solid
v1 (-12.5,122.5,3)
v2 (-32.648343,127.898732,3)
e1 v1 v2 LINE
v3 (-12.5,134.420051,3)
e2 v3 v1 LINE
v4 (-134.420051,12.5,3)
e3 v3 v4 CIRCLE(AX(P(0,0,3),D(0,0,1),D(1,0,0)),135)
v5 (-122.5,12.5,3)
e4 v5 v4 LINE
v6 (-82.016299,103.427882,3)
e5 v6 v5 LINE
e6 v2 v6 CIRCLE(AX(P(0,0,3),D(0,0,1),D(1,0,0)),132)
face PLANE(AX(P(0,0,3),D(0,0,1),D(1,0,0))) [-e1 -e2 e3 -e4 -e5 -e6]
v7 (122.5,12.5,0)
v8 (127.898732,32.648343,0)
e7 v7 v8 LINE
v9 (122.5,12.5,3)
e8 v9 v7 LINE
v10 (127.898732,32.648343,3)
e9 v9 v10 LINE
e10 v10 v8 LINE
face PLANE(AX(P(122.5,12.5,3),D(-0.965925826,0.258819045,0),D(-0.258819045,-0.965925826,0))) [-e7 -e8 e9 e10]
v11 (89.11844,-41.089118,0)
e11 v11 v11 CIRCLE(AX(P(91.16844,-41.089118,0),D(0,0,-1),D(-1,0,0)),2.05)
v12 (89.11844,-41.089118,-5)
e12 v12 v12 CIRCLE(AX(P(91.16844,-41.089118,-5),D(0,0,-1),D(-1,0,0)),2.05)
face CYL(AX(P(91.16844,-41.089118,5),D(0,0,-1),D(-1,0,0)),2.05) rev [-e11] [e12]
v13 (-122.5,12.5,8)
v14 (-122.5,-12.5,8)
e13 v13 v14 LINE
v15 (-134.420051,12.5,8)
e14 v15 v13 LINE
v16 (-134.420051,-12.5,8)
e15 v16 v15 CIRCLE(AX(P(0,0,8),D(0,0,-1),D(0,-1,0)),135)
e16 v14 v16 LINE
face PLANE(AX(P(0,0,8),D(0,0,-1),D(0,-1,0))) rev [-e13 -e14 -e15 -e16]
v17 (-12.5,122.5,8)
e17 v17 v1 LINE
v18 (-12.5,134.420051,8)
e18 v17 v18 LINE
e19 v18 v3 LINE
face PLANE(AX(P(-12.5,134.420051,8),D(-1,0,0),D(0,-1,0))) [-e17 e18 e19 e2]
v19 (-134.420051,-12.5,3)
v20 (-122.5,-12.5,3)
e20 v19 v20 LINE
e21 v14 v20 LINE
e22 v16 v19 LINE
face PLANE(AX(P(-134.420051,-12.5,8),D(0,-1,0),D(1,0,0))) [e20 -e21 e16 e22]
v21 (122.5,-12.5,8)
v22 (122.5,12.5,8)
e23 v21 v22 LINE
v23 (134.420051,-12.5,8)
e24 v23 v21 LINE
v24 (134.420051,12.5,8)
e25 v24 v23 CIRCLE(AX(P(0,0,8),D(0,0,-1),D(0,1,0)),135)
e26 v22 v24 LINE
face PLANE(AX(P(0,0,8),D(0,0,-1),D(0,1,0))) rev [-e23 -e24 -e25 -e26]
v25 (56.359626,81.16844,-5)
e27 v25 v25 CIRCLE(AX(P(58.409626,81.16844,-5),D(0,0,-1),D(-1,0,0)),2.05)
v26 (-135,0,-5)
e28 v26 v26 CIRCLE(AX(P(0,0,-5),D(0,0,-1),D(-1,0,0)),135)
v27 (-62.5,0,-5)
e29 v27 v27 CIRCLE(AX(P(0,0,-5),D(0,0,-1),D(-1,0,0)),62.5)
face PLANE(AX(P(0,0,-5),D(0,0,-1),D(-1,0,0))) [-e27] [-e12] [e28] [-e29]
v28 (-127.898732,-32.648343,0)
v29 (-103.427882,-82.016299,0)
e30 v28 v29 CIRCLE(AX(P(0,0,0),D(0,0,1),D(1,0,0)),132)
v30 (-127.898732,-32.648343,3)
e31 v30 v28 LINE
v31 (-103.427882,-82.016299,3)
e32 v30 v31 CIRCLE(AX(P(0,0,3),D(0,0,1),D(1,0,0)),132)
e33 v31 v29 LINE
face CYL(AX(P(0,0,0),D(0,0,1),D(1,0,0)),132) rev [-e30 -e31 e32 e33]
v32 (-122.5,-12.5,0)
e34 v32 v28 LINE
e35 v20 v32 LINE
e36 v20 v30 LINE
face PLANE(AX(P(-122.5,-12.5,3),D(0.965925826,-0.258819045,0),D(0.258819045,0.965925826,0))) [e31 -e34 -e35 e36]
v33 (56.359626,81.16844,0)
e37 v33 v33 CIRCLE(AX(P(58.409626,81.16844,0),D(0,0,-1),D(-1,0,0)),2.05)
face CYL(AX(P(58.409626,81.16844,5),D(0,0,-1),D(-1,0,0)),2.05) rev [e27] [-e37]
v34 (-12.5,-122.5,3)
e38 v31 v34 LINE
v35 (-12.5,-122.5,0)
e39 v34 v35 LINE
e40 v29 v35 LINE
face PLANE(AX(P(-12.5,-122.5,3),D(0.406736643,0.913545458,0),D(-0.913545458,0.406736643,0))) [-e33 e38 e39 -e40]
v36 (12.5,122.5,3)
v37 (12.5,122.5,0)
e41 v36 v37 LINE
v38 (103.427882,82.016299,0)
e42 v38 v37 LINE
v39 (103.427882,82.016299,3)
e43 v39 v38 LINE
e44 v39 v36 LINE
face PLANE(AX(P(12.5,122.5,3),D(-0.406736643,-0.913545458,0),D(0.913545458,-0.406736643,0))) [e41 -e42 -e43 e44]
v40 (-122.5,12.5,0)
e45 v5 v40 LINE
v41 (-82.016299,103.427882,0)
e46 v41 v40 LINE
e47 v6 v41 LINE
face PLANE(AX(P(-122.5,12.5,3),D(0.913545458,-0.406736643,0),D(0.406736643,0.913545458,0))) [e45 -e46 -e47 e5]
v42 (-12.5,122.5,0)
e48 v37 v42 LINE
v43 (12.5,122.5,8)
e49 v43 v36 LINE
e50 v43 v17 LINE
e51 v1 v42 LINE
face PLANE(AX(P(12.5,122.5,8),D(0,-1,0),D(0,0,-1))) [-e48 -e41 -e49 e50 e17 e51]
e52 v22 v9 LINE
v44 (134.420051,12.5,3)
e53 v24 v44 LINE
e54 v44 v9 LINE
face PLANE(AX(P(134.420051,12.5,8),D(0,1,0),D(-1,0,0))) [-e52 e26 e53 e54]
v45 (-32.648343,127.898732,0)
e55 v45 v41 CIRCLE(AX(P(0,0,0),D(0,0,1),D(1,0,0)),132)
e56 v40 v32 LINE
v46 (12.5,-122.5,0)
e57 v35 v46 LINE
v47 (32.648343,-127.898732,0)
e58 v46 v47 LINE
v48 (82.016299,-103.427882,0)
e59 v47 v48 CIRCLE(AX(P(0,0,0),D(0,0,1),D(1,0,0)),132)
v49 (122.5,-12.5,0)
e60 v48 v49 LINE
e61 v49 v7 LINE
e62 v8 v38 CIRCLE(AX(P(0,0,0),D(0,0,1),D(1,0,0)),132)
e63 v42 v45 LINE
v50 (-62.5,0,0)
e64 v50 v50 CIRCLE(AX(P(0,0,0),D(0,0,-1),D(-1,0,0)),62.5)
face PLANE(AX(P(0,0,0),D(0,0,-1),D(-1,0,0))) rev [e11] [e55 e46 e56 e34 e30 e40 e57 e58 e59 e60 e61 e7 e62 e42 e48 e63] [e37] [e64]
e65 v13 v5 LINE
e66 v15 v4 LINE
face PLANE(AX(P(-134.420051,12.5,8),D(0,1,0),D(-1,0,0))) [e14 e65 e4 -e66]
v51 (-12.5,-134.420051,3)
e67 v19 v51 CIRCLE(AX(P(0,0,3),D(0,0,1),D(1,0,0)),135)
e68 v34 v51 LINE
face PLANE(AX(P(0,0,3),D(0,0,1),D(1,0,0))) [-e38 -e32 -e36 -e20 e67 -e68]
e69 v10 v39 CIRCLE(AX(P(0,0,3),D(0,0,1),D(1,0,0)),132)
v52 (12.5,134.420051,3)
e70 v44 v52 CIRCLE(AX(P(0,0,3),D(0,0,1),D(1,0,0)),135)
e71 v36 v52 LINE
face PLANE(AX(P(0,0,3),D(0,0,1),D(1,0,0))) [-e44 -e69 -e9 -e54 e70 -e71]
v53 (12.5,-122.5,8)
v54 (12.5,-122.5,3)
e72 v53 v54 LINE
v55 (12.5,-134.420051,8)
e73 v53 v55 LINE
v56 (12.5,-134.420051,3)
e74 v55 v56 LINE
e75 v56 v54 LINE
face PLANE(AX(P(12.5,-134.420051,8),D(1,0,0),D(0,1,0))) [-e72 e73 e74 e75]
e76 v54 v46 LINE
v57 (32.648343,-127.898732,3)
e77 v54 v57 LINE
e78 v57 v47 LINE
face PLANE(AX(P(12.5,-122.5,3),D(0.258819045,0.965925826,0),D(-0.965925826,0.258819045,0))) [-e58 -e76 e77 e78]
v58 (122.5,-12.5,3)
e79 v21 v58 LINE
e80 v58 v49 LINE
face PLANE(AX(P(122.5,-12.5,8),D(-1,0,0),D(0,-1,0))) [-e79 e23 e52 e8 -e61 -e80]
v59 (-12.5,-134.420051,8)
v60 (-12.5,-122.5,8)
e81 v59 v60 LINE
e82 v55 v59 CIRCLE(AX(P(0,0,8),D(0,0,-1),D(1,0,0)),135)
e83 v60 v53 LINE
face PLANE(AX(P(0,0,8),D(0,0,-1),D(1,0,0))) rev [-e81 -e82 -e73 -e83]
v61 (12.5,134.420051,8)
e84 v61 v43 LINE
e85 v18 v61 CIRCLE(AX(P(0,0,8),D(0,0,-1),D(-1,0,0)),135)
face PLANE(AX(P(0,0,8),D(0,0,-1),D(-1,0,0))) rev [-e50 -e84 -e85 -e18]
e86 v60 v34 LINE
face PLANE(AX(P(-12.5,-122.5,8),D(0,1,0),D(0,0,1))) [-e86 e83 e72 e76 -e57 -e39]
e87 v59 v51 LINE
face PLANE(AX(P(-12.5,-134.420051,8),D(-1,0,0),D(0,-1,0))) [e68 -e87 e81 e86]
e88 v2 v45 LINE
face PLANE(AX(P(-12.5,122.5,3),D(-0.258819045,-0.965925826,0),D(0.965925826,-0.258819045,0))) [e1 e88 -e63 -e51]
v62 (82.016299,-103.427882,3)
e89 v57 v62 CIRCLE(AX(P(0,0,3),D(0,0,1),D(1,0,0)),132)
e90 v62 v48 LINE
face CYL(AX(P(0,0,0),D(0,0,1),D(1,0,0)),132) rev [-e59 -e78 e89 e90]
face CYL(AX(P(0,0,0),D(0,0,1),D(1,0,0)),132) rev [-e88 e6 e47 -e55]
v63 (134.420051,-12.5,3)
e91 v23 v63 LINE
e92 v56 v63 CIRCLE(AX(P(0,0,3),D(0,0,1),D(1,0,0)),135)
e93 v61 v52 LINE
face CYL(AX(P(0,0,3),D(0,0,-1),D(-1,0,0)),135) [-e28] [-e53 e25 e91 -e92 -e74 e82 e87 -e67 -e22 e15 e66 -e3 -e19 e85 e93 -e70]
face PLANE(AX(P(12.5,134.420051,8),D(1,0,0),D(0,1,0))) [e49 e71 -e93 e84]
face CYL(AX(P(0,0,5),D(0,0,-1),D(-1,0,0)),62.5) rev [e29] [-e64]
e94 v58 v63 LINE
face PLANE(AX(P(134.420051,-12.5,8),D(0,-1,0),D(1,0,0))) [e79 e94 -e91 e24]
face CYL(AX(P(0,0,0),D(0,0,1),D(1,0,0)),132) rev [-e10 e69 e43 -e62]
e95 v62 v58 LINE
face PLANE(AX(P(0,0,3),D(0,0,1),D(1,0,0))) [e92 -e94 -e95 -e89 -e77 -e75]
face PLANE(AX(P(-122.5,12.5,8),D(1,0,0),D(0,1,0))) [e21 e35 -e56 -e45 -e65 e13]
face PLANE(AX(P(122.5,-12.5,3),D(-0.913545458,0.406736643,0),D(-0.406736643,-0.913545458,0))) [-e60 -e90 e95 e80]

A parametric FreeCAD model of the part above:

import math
import FreeCAD as App
import Part
import Sketcher
Q = App.Units.Quantity

doc = App.newDocument("Part")
params = doc.addObject("Spreadsheet::Sheet", "Params")
for row, (alias, value) in enumerate([
    ("sketch1_diameter", "270 mm"),
    ("pad1_length", "3 mm"),
    ("sketch2_diameter", "264 mm"),
    ("sketch3_radius", "135 mm"),
    ("sketch3_width", "25 mm"),
    ("pad2_length", "8 mm"),
    ("sketch4_radius", "132 mm"),
    ("sketch4_width", "25 mm"),
    ("pad3_length", "3 mm"),
    ("sketch5_diameter", "270 mm"),
    ("pad4_length", "5 mm"),
    ("sketch6_diameter", "125 mm"),
    ("pocket2_length", "10 mm"),
    ("sketch7_diameter", "4.1 mm"),
    ("pocket3_length", "10 mm"),
], start=1):
    params.set(f"A{row}", alias)
    params.set(f"B{row}", "=" + value)
    params.setAlias(f"B{row}", alias)

body = doc.addObject("PartDesign::Body", "Body")

sketch1 = body.newObject("Sketcher::SketchObject", "Sketch")
sketch1.AttachmentSupport = (doc.getObject("XY_Plane"), [""])
sketch1.MapMode = "FlatFace"
sketch1.addGeometry(Part.Circle(App.Vector(0, 0, 0), App.Vector(0, 0, 1), 135), False)
sketch1.addConstraint(Sketcher.Constraint("Coincident", 0, 3, -1, 1))
sketch1.addConstraint(Sketcher.Constraint("Diameter", 0, 270.0))
sketch1.setExpression("Constraints[1]", "Params.sketch1_diameter")
pad1 = body.newObject("PartDesign::Pad", "Pad")
pad1.Profile = sketch1
pad1.setExpression("Length", "Params.pad1_length")

sketch2 = body.newObject("Sketcher::SketchObject", "Sketch001")
sketch2.AttachmentSupport = (doc.getObject("XY_Plane"), [""])
sketch2.MapMode = "FlatFace"
sketch2.AttachmentOffset = App.Placement(App.Vector(0, 0, 3), App.Rotation())
sketch2.addGeometry(Part.Circle(App.Vector(0, 0, 0), App.Vector(0, 0, 1), 132), False)
sketch2.addConstraint(Sketcher.Constraint("Coincident", 0, 3, -1, 1))
sketch2.addConstraint(Sketcher.Constraint("Diameter", 0, 264.0))
sketch2.setExpression("Constraints[1]", "Params.sketch2_diameter")
pocket1 = body.newObject("PartDesign::Pocket", "Pocket")
pocket1.Profile = sketch2
pocket1.Type = "ThroughAll"

sketch3 = body.newObject("Sketcher::SketchObject", "Sketch002")
sketch3.AttachmentSupport = (doc.getObject("XY_Plane"), [""])
sketch3.MapMode = "FlatFace"
sketch3.addGeometry(Part.LineSegment(App.Vector(12, 134, 0), App.Vector(12, 122, 0)), False)
sketch3.addGeometry(Part.LineSegment(App.Vector(12, 122, 0), App.Vector(-12, 122, 0)), False)
sketch3.addGeometry(Part.LineSegment(App.Vector(-12, 122, 0), App.Vector(-12, 134, 0)), False)
sketch3.addGeometry(Part.ArcOfCircle(Part.Circle(App.Vector(0, 0, 0), App.Vector(0, 0, 1), 135), math.radians(84.69), math.radians(95.31)), False)
sketch3.addConstraint(Sketcher.Constraint("Coincident", 0, 2, 1, 1))
sketch3.addConstraint(Sketcher.Constraint("Coincident", 1, 2, 2, 1))
sketch3.addConstraint(Sketcher.Constraint("Coincident", 2, 2, 3, 2))
sketch3.addConstraint(Sketcher.Constraint("Coincident", 3, 1, 0, 1))
sketch3.addConstraint(Sketcher.Constraint("Vertical", 0))
sketch3.addConstraint(Sketcher.Constraint("Horizontal", 1))
sketch3.addConstraint(Sketcher.Constraint("Vertical", 2))
sketch3.addConstraint(Sketcher.Constraint("Coincident", 3, 3, -1, 1))
sketch3.addConstraint(Sketcher.Constraint("Horizontal", 2, 2, 3, 1))
sketch3.addConstraint(Sketcher.Constraint("Radius", 3, 135.0))
sketch3.addConstraint(Sketcher.Constraint("DistanceX", 1, 2, 1, 1, 25.0))
sketch3.addConstraint(Sketcher.Constraint("DistanceY", -1, 1, 0, 2, 122.5))
sketch3.setExpression("Constraints[9]", "Params.sketch3_radius")
sketch3.setExpression("Constraints[10]", "Params.sketch3_width")
pad2 = body.newObject("PartDesign::Pad", "Pad001")
pad2.Profile = sketch3
pad2.setExpression("Length", "Params.pad2_length")
doc.recompute()

polarpattern = body.newObject("PartDesign::PolarPattern", "PolarPattern")
polarpattern.Originals = [pad2]
polarpattern.Axis = (doc.getObject("Z_Axis"), [""])
polarpattern.Angle = 360
polarpattern.Occurrences = 4
body.Tip = polarpattern

sketch4 = body.newObject("Sketcher::SketchObject", "Sketch003")
sketch4.AttachmentSupport = (doc.getObject("XY_Plane"), [""])
sketch4.MapMode = "FlatFace"
sketch4.AttachmentOffset = App.Placement(App.Vector(0, 0, 3), App.Rotation())
sketch4.addGeometry(Part.LineSegment(App.Vector(12, 122, 0), App.Vector(-12, 122, 0)), False)
sketch4.addGeometry(Part.LineSegment(App.Vector(-12, 122, 0), App.Vector(-33, 128, 0)), False)
sketch4.addGeometry(Part.ArcOfCircle(Part.Circle(App.Vector(0, 0, 0), App.Vector(0, 0, 1), 132), math.radians(38), math.radians(104)), False)
sketch4.addGeometry(Part.LineSegment(App.Vector(103, 82, 0), App.Vector(12, 122, 0)), False)
sketch4.addConstraint(Sketcher.Constraint("Coincident", 0, 2, 1, 1))
sketch4.addConstraint(Sketcher.Constraint("Coincident", 1, 2, 2, 2))
sketch4.addConstraint(Sketcher.Constraint("Coincident", 2, 1, 3, 1))
sketch4.addConstraint(Sketcher.Constraint("Coincident", 3, 2, 0, 1))
sketch4.addConstraint(Sketcher.Constraint("Horizontal", 0))
sketch4.addConstraint(Sketcher.Constraint("Coincident", 2, 3, -1, 1))
sketch4.addConstraint(Sketcher.Constraint("Radius", 2, 132.0))
sketch4.addConstraint(Sketcher.Constraint("DistanceX", 0, 2, 0, 1, 25.0))
sketch4.addConstraint(Sketcher.Constraint("Angle", 1, Q("165 deg")))
sketch4.addConstraint(Sketcher.Constraint("Angle", 3, Q("156 deg")))
sketch4.addConstraint(Sketcher.Constraint("DistanceX", 0, 2, -1, 1, 12.5))
sketch4.addConstraint(Sketcher.Constraint("DistanceY", -1, 1, 0, 2, 122.5))
sketch4.setExpression("Constraints[6]", "Params.sketch4_radius")
sketch4.setExpression("Constraints[7]", "Params.sketch4_width")
pad3 = body.newObject("PartDesign::Pad", "Pad002")
pad3.Profile = sketch4
pad3.setExpression("Length", "Params.pad3_length")
pad3.Reversed = True
doc.recompute()

polarpattern2 = body.newObject("PartDesign::PolarPattern", "PolarPattern001")
polarpattern2.Originals = [pad3]
polarpattern2.Axis = (doc.getObject("Z_Axis"), [""])
polarpattern2.Angle = 360
polarpattern2.Occurrences = 4
body.Tip = polarpattern2

sketch5 = body.newObject("Sketcher::SketchObject", "Sketch004")
sketch5.AttachmentSupport = (doc.getObject("XY_Plane"), [""])
sketch5.MapMode = "FlatFace"
sketch5.AttachmentOffset = App.Placement(App.Vector(0, 0, -5), App.Rotation())
sketch5.addGeometry(Part.Circle(App.Vector(0, 0, 0), App.Vector(0, 0, 1), 135), False)
sketch5.addConstraint(Sketcher.Constraint("Coincident", 0, 3, -1, 1))
sketch5.addConstraint(Sketcher.Constraint("Diameter", 0, 270.0))
sketch5.setExpression("Constraints[1]", "Params.sketch5_diameter")
pad4 = body.newObject("PartDesign::Pad", "Pad003")
pad4.Profile = sketch5
pad4.setExpression("Length", "Params.pad4_length")

sketch6 = body.newObject("Sketcher::SketchObject", "Sketch005")
sketch6.AttachmentSupport = (doc.getObject("XY_Plane"), [""])
sketch6.MapMode = "FlatFace"
sketch6.AttachmentOffset = App.Placement(App.Vector(0, 0, -5), App.Rotation())
sketch6.addGeometry(Part.Circle(App.Vector(0, 0, 0), App.Vector(0, 0, 1), 62), False)
sketch6.addConstraint(Sketcher.Constraint("Coincident", 0, 3, -1, 1))
sketch6.addConstraint(Sketcher.Constraint("Diameter", 0, 125.0))
sketch6.setExpression("Constraints[1]", "Params.sketch6_diameter")
pocket2 = body.newObject("PartDesign::Pocket", "Pocket001")
pocket2.Profile = sketch6
pocket2.setExpression("Length", "Params.pocket2_length")
pocket2.Reversed = True

sketch7 = body.newObject("Sketcher::SketchObject", "Sketch006")
sketch7.AttachmentSupport = (doc.getObject("XY_Plane"), [""])
sketch7.MapMode = "FlatFace"
sketch7.AttachmentOffset = App.Placement(App.Vector(0, 0, -5), App.Rotation())
sketch7.addGeometry(Part.Circle(App.Vector(91.2, -41.1, 0), App.Vector(0, 0, 1), 2), False)
sketch7.addGeometry(Part.Circle(App.Vector(58.4, 81.2, 0), App.Vector(0, 0, 1), 2), False)
sketch7.addConstraint(Sketcher.Constraint("Equal", 0, 1))
sketch7.addConstraint(Sketcher.Constraint("Diameter", 0, 4.1))
sketch7.addConstraint(Sketcher.Constraint("DistanceX", -1, 1, 0, 3, 91.16844))
sketch7.addConstraint(Sketcher.Constraint("DistanceY", -1, 1, 1, 3, 81.16844))
sketch7.addConstraint(Sketcher.Constraint("DistanceY", 0, 3, -1, 1, 41.089118))
sketch7.addConstraint(Sketcher.Constraint("DistanceX", -1, 1, 1, 3, 58.409626))
sketch7.setExpression("Constraints[1]", "Params.sketch7_diameter")
pocket3 = body.newObject("PartDesign::Pocket", "Pocket002")
pocket3.Profile = sketch7
pocket3.setExpression("Length", "Params.pocket3_length")
pocket3.Reversed = True

doc.recompute()
